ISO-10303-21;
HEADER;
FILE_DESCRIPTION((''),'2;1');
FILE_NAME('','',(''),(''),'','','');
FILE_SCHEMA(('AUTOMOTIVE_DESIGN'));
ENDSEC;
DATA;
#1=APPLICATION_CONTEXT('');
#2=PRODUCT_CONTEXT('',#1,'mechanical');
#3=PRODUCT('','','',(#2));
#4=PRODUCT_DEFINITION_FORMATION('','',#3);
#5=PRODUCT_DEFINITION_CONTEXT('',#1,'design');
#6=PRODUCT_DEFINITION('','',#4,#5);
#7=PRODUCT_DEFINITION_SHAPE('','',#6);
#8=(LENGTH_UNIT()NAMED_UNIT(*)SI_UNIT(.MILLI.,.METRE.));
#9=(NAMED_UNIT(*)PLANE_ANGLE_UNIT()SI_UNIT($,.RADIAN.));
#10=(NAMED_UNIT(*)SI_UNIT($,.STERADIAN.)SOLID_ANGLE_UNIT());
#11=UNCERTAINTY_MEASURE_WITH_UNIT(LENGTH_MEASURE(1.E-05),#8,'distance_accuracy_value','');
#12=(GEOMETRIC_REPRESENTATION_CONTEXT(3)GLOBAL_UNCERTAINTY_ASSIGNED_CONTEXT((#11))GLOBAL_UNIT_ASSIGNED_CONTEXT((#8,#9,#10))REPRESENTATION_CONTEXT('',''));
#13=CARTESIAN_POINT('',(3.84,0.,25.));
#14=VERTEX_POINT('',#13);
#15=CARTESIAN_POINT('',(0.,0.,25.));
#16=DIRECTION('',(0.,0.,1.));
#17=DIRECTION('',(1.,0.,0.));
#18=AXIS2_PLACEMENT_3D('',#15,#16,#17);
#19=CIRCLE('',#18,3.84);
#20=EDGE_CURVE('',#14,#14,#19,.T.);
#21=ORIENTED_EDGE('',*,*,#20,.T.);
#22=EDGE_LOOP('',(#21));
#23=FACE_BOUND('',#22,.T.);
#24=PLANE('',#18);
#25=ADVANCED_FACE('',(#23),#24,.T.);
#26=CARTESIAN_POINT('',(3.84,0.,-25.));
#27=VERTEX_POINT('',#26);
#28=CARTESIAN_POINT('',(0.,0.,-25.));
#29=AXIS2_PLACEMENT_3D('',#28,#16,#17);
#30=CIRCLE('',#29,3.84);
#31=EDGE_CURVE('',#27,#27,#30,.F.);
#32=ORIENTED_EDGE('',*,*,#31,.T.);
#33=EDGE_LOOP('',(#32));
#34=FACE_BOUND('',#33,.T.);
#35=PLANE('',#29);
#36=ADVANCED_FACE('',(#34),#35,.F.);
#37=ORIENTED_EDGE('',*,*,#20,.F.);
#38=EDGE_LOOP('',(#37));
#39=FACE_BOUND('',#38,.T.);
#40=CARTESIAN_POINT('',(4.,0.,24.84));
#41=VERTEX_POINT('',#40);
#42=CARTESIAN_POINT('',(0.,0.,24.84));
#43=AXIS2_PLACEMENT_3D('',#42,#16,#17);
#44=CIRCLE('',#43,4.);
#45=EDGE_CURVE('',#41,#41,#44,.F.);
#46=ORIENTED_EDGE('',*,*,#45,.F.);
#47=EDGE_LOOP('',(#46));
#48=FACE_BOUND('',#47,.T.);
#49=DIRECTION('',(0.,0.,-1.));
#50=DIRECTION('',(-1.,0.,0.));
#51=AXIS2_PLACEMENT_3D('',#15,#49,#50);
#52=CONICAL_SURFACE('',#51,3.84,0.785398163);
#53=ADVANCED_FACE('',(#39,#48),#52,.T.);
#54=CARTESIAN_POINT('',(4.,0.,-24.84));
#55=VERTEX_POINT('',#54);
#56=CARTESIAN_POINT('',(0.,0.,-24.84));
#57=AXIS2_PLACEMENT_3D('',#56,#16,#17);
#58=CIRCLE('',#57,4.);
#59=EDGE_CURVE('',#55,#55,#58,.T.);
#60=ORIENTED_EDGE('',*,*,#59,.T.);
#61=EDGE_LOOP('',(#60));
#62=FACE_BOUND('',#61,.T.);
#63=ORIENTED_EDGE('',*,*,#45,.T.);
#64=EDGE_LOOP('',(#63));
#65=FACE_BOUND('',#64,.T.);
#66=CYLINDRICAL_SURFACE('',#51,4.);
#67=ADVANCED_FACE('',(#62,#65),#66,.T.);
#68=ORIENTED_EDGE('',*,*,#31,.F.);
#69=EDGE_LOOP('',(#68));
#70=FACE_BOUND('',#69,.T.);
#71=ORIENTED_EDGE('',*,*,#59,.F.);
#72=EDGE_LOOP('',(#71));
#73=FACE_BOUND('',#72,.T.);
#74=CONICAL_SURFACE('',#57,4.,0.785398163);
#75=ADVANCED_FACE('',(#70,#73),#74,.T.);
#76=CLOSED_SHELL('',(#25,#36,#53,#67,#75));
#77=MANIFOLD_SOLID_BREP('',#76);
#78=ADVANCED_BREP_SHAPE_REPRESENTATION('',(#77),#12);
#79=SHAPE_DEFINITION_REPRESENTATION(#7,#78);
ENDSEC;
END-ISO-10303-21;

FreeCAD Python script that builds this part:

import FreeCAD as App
import Part
import Sketcher


def edges_at(feature, points):
    """Names of the edges that pass closest to the given points."""
    edges = feature.Shape.Edges
    near = lambda p: min(range(len(edges)), key=lambda i: edges[i].distToShape(Part.Vertex(*p))[0])
    return sorted({f"Edge{near(p) + 1}" for p in points})

doc = App.newDocument("Part")
body = doc.addObject("PartDesign::Body", "Body")

# Sketch on XY plane
sketch1 = body.newObject("Sketcher::SketchObject", "Sketch")
sketch1.AttachmentSupport = (doc.getObject("XY_Plane"), [""])
sketch1.MapMode = "FlatFace"
sketch1.addGeometry(Part.Circle(App.Vector(0, 0, 0), App.Vector(0, 0, 1), 4), False)
sketch1.addConstraint([
    Sketcher.Constraint("Coincident", 0, 3, -1, 1),
    Sketcher.Constraint("Diameter", 0, 8.0),
])
pad1 = body.newObject("PartDesign::Pad", "Pad")
pad1.Profile = sketch1
pad1.Type = "TwoLengths"
pad1.Length = 25
pad1.Length2 = 25
doc.recompute()

chamfer = body.newObject("PartDesign::Chamfer", "Chamfer")
chamfer.Base = (pad1, edges_at(pad1, [(-4, 0, -25), (-4, 0, 25)]))
chamfer.Size = 0.16

doc.recompute()
